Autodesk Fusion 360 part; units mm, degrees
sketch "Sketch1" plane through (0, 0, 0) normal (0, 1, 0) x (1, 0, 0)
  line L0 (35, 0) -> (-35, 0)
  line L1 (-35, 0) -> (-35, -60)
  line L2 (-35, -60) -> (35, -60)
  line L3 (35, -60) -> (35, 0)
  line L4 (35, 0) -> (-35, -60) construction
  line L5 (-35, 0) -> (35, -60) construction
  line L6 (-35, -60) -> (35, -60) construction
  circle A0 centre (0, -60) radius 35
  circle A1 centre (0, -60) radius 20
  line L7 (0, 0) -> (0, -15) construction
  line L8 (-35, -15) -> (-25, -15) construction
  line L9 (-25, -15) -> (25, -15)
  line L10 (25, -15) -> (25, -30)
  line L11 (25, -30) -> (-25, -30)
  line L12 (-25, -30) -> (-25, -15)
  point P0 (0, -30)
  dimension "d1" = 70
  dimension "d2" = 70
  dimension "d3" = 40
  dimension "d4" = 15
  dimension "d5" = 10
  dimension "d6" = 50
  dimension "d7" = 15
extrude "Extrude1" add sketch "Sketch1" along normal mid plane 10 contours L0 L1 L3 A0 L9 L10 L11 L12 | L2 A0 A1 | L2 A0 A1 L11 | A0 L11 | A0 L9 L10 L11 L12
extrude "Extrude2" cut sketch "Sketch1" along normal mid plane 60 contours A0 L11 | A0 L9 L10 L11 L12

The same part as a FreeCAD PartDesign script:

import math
import FreeCAD as App
import Part
import Sketcher
Q = App.Units.Quantity

doc = App.newDocument("Part")
body = doc.addObject("PartDesign::Body", "Body")

# Sketch on XZ plane
sketch1 = body.newObject("Sketcher::SketchObject", "Sketch")
sketch1.AttachmentSupport = (doc.getObject("XZ_Plane"), [""])
sketch1.MapMode = "FlatFace"
sketch1.addGeometry([
    Part.LineSegment(App.Vector(35, 60, 0), App.Vector(35, 0, 0)),  # 0
    Part.LineSegment(App.Vector(35, 0, 0), App.Vector(-35, 0, 0)),  # 1
    Part.LineSegment(App.Vector(-35, 0, 0), App.Vector(-35, 60, 0)),  # 2
    Part.ArcOfCircle(Part.Circle(App.Vector(0, 60, 0), App.Vector(0, 0, 1), 35), math.radians(0), math.radians(180)),  # 3
    Part.Circle(App.Vector(0, 60, 0), App.Vector(0, 0, 1), 20),  # 4
], False)
sketch1.addConstraint([
    Sketcher.Constraint("Coincident", 0, 2, 1, 1),
    Sketcher.Constraint("Coincident", 1, 2, 2, 1),
    Sketcher.Constraint("Tangent", 2, 2, 3, 2),
    Sketcher.Constraint("Tangent", 3, 1, 0, 1),
    Sketcher.Constraint("Vertical", 0),
    Sketcher.Constraint("Horizontal", 1),
    Sketcher.Constraint("Vertical", 2),
    Sketcher.Constraint("Coincident", 4, 3, 3, 3),
    Sketcher.Constraint("Symmetric", 0, 2, 1, 2, -1, 1),
    Sketcher.Constraint("Diameter", 4, Q("40 mm")),
    Sketcher.Constraint("Radius", 3, Q("35 mm")),
    Sketcher.Constraint("DistanceY", 0, 2, 0, 1, Q("60 mm")),
])
pad1 = body.newObject("PartDesign::Pad", "Pad")
pad1.Profile = sketch1
pad1.Length = 10
pad1.Midplane = True

# Sketch on XZ plane
sketch2 = body.newObject("Sketcher::SketchObject", "Sketch001")
sketch2.AttachmentSupport = (doc.getObject("XZ_Plane"), [""])
sketch2.MapMode = "FlatFace"
sketch2.addGeometry([
    Part.LineSegment(App.Vector(25, 30, 0), App.Vector(25, 15, 0)),
    Part.LineSegment(App.Vector(25, 15, 0), App.Vector(-25, 15, 0)),
    Part.LineSegment(App.Vector(-25, 15, 0), App.Vector(-25, 30, 0)),
    Part.LineSegment(App.Vector(-25, 30, 0), App.Vector(25, 30, 0)),
], False)
sketch2.addConstraint([
    Sketcher.Constraint("Coincident", 0, 2, 1, 1),
    Sketcher.Constraint("Coincident", 1, 2, 2, 1),
    Sketcher.Constraint("Coincident", 2, 2, 3, 1),
    Sketcher.Constraint("Coincident", 3, 2, 0, 1),
    Sketcher.Constraint("Vertical", 0),
    Sketcher.Constraint("Horizontal", 1),
    Sketcher.Constraint("Vertical", 2),
    Sketcher.Constraint("Horizontal", 3),
    Sketcher.Constraint("DistanceX", 1, 2, 1, 1, Q("50 mm")),
    Sketcher.Constraint("DistanceY", 0, 2, 0, 1, Q("15 mm")),
    Sketcher.Constraint("DistanceY", -1, 1, 0, 2, Q("15 mm")),
    Sketcher.Constraint("DistanceX", -1, 1, 0, 2, Q("25 mm")),
])
pocket1 = body.newObject("PartDesign::Pocket", "Pocket")
pocket1.Profile = sketch2
pocket1.Length = 60
pocket1.Midplane = True

doc.recompute()
